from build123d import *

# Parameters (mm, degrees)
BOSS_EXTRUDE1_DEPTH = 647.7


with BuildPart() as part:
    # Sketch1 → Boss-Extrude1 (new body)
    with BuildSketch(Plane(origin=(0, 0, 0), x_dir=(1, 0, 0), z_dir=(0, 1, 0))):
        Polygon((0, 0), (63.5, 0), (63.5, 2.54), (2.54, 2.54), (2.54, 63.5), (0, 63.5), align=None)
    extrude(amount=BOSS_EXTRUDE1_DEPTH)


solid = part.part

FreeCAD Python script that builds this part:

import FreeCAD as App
import Part
import Sketcher
from FreeCAD import Vector
Q = App.Units.Quantity


def add_polygon(sketch, points):
    """Adds a closed chain of lines whose ends are joined by coincident constraints."""
    first, n = sketch.GeometryCount, len(points)
    for a, b in zip(points, points[1:] + points[:1]):
        sketch.addGeometry(Part.LineSegment(App.Vector(*a, 0), App.Vector(*b, 0)), False)
    for i in range(n):
        sketch.addConstraint(Sketcher.Constraint("Coincident", first + i, 2, first + (i + 1) % n, 1))

doc = App.newDocument("Part")
body = doc.addObject("PartDesign::Body", "Body")

# Sketch on XZ plane
sketch1 = body.newObject("Sketcher::SketchObject", "Sketch")
sketch1.AttachmentSupport = (doc.getObject("XZ_Plane"), [""])
sketch1.MapMode = "FlatFace"
add_polygon(sketch1, [(0, 0), (63.5, 0), (63.5, -2.5), (2.5, -2.5), (2.5, -63.5), (0, -63.5)])  # lines 0-5
sketch1.addConstraint(Sketcher.Constraint("Horizontal", 0))
sketch1.addConstraint(Sketcher.Constraint("Vertical", 1))
sketch1.addConstraint(Sketcher.Constraint("Horizontal", 2))
sketch1.addConstraint(Sketcher.Constraint("Vertical", 3))
sketch1.addConstraint(Sketcher.Constraint("Horizontal", 4))
sketch1.addConstraint(Sketcher.Constraint("Vertical", 5))
sketch1.addConstraint(Sketcher.Constraint("Coincident", 5, 2, -1, 1))
sketch1.addConstraint(Sketcher.Constraint("Equal", 4, 1))
sketch1.addConstraint(Sketcher.Constraint("Equal", 2, 3))
sketch1.addConstraint(Sketcher.Constraint("DistanceX", 0, 1, 0, 2, Q("2.5 in")))
sketch1.addConstraint(Sketcher.Constraint("DistanceX", 2, 2, 2, 1, Q("2.4 in")))
pad1 = body.newObject("PartDesign::Pad", "Pad")
pad1.Profile = sketch1
pad1.Length = Q("25.5 in")
pad1.Reversed = True

doc.recompute()
